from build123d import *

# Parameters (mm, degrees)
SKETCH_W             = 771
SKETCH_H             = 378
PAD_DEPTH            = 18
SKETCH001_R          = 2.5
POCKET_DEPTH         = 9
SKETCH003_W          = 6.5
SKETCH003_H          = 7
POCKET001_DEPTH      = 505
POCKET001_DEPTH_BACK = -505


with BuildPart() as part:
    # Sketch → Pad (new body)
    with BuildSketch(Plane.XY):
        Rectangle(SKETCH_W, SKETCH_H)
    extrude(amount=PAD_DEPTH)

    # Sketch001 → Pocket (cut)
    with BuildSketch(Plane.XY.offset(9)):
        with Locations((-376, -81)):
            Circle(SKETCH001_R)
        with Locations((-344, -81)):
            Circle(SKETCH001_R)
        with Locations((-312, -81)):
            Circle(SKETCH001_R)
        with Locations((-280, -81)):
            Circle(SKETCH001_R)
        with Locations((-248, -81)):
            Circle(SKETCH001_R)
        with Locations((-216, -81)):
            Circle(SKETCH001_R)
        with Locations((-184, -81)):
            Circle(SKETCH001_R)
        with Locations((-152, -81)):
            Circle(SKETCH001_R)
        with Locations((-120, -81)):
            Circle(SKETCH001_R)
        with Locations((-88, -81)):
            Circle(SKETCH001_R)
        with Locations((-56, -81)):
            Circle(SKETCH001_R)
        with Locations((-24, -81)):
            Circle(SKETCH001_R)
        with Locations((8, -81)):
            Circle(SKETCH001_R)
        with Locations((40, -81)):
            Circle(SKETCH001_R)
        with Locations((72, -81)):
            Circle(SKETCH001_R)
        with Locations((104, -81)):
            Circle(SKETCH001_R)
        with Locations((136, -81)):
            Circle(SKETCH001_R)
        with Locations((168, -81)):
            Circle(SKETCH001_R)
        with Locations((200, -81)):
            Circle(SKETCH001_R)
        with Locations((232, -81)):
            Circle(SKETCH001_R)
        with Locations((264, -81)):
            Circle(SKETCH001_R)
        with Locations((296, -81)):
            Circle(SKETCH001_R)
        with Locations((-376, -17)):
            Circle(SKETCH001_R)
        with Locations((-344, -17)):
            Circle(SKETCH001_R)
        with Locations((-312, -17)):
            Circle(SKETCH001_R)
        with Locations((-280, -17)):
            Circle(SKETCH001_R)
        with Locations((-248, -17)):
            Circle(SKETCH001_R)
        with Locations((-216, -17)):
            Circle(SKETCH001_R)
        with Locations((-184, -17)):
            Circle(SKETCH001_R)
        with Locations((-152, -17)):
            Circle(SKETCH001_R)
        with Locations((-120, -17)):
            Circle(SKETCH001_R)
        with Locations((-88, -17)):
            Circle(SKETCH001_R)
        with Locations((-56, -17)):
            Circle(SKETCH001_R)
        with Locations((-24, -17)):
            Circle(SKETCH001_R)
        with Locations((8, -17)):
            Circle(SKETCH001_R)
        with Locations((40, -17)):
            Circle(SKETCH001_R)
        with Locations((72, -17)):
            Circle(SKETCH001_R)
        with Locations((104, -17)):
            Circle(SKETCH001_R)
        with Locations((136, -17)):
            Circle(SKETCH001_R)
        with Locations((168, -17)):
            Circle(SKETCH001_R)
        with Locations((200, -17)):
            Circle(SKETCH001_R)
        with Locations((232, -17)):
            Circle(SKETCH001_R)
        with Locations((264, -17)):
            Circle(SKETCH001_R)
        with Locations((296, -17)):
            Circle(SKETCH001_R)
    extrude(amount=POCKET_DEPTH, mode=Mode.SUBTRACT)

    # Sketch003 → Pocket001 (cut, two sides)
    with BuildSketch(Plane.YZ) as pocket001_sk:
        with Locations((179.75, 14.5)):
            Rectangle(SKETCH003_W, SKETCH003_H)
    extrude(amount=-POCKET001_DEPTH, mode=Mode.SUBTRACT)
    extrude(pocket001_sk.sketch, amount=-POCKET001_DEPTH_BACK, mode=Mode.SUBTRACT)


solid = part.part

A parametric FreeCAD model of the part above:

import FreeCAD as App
import Part
import Sketcher
Q = App.Units.Quantity


def add_polygon(sketch, points):
    """Adds a closed chain of lines whose ends are joined by coincident constraints."""
    first, n = sketch.GeometryCount, len(points)
    for a, b in zip(points, points[1:] + points[:1]):
        sketch.addGeometry(Part.LineSegment(App.Vector(*a, 0), App.Vector(*b, 0)), False)
    for i in range(n):
        sketch.addConstraint(Sketcher.Constraint("Coincident", first + i, 2, first + (i + 1) % n, 1))

doc = App.newDocument("Part")
params = doc.addObject("Spreadsheet::Sheet", "Params")
for row, (alias, value) in enumerate([
    ("sketch1_width", "771 mm"),
    ("sketch1_height", "378 mm"),
    ("pad1_length", "18 mm"),
    ("sketch2_diameter", "5 mm"),
    ("pocket1_length", "9 mm"),
    ("sketch3_height", "7 mm"),
    ("sketch3_width", "6.5 mm"),
], start=1):
    params.set(f"A{row}", alias)
    params.set(f"B{row}", "=" + value)
    params.setAlias(f"B{row}", alias)

body = doc.addObject("PartDesign::Body", "Body")

sketch1 = doc.addObject("Sketcher::SketchObject", "Sketch")
body.addObject(sketch1)
sketch1.AttachmentSupport = (doc.XY_Plane, [""])
sketch1.MapMode = "FlatFace"
add_polygon(sketch1, [(-386, 189), (-386, -189), (386, -189), (386, 189)])
sketch1.addConstraint([
    Sketcher.Constraint("Vertical", 0),
    Sketcher.Constraint("Horizontal", 1),
    Sketcher.Constraint("Vertical", 2),
    Sketcher.Constraint("Horizontal", 3),
    Sketcher.Constraint("Symmetric", 0, 2, 2, 2, -1, 1),
    Sketcher.Constraint("DistanceX", 1, 1, 1, 2, Q("771 mm")),
    Sketcher.Constraint("DistanceY", 0, 2, 0, 1, Q("378 mm")),
])
sketch1.setExpression("Constraints[9]", "Params.sketch1_width")
sketch1.setExpression("Constraints[10]", "Params.sketch1_height")
pad1 = doc.addObject("PartDesign::Pad", "Pad")
body.addObject(pad1)
pad1.Profile = sketch1
pad1.setExpression("Length", "Params.pad1_length")

sketch2 = doc.addObject("Sketcher::SketchObject", "Sketch001")
body.addObject(sketch2)
sketch2.AttachmentSupport = (doc.XY_Plane, [""])
sketch2.MapMode = "FlatFace"
sketch2.AttachmentOffset = App.Placement(App.Vector(0, 0, 9), App.Rotation())
sketch2.addGeometry([
    Part.Circle(App.Vector(-376, -81, 0), App.Vector(0, 0, 1), 2.5),
    Part.Circle(App.Vector(-344, -81, 0), App.Vector(0, 0, 1), 2.5),
    Part.Circle(App.Vector(-312, -81, 0), App.Vector(0, 0, 1), 2.5),
    Part.Circle(App.Vector(-280, -81, 0), App.Vector(0, 0, 1), 2.5),
    Part.Circle(App.Vector(-248, -81, 0), App.Vector(0, 0, 1), 2.5),
    Part.Circle(App.Vector(-216, -81, 0), App.Vector(0, 0, 1), 2.5),
    Part.Circle(App.Vector(-184, -81, 0), App.Vector(0, 0, 1), 2.5),
    Part.Circle(App.Vector(-152, -81, 0), App.Vector(0, 0, 1), 2.5),
    Part.Circle(App.Vector(-120, -81, 0), App.Vector(0, 0, 1), 2.5),
    Part.Circle(App.Vector(-88, -81, 0), App.Vector(0, 0, 1), 2.5),
    Part.Circle(App.Vector(-56, -81, 0), App.Vector(0, 0, 1), 2.5),
    Part.Circle(App.Vector(-24, -81, 0), App.Vector(0, 0, 1), 2.5),
    Part.Circle(App.Vector(8, -81, 0), App.Vector(0, 0, 1), 2.5),
    Part.Circle(App.Vector(40, -81, 0), App.Vector(0, 0, 1), 2.5),
    Part.Circle(App.Vector(72, -81, 0), App.Vector(0, 0, 1), 2.5),
    Part.Circle(App.Vector(104, -81, 0), App.Vector(0, 0, 1), 2.5),
    Part.Circle(App.Vector(136, -81, 0), App.Vector(0, 0, 1), 2.5),
    Part.Circle(App.Vector(168, -81, 0), App.Vector(0, 0, 1), 2.5),
    Part.Circle(App.Vector(200, -81, 0), App.Vector(0, 0, 1), 2.5),
    Part.Circle(App.Vector(232, -81, 0), App.Vector(0, 0, 1), 2.5),
    Part.Circle(App.Vector(264, -81, 0), App.Vector(0, 0, 1), 2.5),
    Part.Circle(App.Vector(296, -81, 0), App.Vector(0, 0, 1), 2.5),
    Part.Circle(App.Vector(-376, -17, 0), App.Vector(0, 0, 1), 2.5),
    Part.Circle(App.Vector(-344, -17, 0), App.Vector(0, 0, 1), 2.5),
    Part.Circle(App.Vector(-312, -17, 0), App.Vector(0, 0, 1), 2.5),
    Part.Circle(App.Vector(-280, -17, 0), App.Vector(0, 0, 1), 2.5),
    Part.Circle(App.Vector(-248, -17, 0), App.Vector(0, 0, 1), 2.5),
    Part.Circle(App.Vector(-216, -17, 0), App.Vector(0, 0, 1), 2.5),
    Part.Circle(App.Vector(-184, -17, 0), App.Vector(0, 0, 1), 2.5),
    Part.Circle(App.Vector(-152, -17, 0), App.Vector(0, 0, 1), 2.5),
    Part.Circle(App.Vector(-120, -17, 0), App.Vector(0, 0, 1), 2.5),
    Part.Circle(App.Vector(-88, -17, 0), App.Vector(0, 0, 1), 2.5),
    Part.Circle(App.Vector(-56, -17, 0), App.Vector(0, 0, 1), 2.5),
    Part.Circle(App.Vector(-24, -17, 0), App.Vector(0, 0, 1), 2.5),
    Part.Circle(App.Vector(8, -17, 0), App.Vector(0, 0, 1), 2.5),
    Part.Circle(App.Vector(40, -17, 0), App.Vector(0, 0, 1), 2.5),
    Part.Circle(App.Vector(72, -17, 0), App.Vector(0, 0, 1), 2.5),
    Part.Circle(App.Vector(104, -17, 0), App.Vector(0, 0, 1), 2.5),
    Part.Circle(App.Vector(136, -17, 0), App.Vector(0, 0, 1), 2.5),
    Part.Circle(App.Vector(168, -17, 0), App.Vector(0, 0, 1), 2.5),
    Part.Circle(App.Vector(200, -17, 0), App.Vector(0, 0, 1), 2.5),
    Part.Circle(App.Vector(232, -17, 0), App.Vector(0, 0, 1), 2.5),
    Part.Circle(App.Vector(264, -17, 0), App.Vector(0, 0, 1), 2.5),
    Part.Circle(App.Vector(296, -17, 0), App.Vector(0, 0, 1), 2.5),
], False)
sketch2.addConstraint([
    Sketcher.Constraint("Equal", 0, 1),
    Sketcher.Constraint("Equal", 1, 2),
    Sketcher.Constraint("Equal", 2, 3),
    Sketcher.Constraint("Equal", 3, 4),
    Sketcher.Constraint("Equal", 4, 5),
    Sketcher.Constraint("Equal", 5, 6),
    Sketcher.Constraint("Equal", 6, 7),
    Sketcher.Constraint("Equal", 7, 8),
    Sketcher.Constraint("Equal", 8, 9),
    Sketcher.Constraint("Equal", 9, 10),
    Sketcher.Constraint("Equal", 10, 11),
    Sketcher.Constraint("Equal", 11, 12),
    Sketcher.Constraint("Equal", 12, 13),
    Sketcher.Constraint("Equal", 13, 14),
    Sketcher.Constraint("Equal", 14, 15),
    Sketcher.Constraint("Equal", 15, 16),
    Sketcher.Constraint("Equal", 16, 17),
    Sketcher.Constraint("Equal", 17, 18),
    Sketcher.Constraint("Equal", 18, 19),
    Sketcher.Constraint("Equal", 19, 20),
    Sketcher.Constraint("Equal", 20, 21),
    Sketcher.Constraint("Equal", 21, 22),
    Sketcher.Constraint("Equal", 22, 23),
    Sketcher.Constraint("Equal", 23, 24),
    Sketcher.Constraint("Equal", 24, 25),
    Sketcher.Constraint("Equal", 25, 26),
    Sketcher.Constraint("Equal", 26, 27),
    Sketcher.Constraint("Equal", 27, 28),
    Sketcher.Constraint("Equal", 28, 29),
    Sketcher.Constraint("Equal", 29, 30),
    Sketcher.Constraint("Equal", 30, 31),
    Sketcher.Constraint("Equal", 31, 32),
    Sketcher.Constraint("Equal", 32, 33),
    Sketcher.Constraint("Equal", 33, 34),
    Sketcher.Constraint("Equal", 34, 35),
    Sketcher.Constraint("Equal", 35, 36),
    Sketcher.Constraint("Equal", 36, 37),
    Sketcher.Constraint("Equal", 37, 38),
    Sketcher.Constraint("Equal", 38, 39),
    Sketcher.Constraint("Equal", 39, 40),
    Sketcher.Constraint("Equal", 40, 41),
    Sketcher.Constraint("Equal", 41, 42),
    Sketcher.Constraint("Equal", 42, 43),
    Sketcher.Constraint("Horizontal", 0, 3, 1, 3),
    Sketcher.Constraint("Horizontal", 1, 3, 2, 3),
    Sketcher.Constraint("Horizontal", 2, 3, 3, 3),
    Sketcher.Constraint("Horizontal", 3, 3, 4, 3),
    Sketcher.Constraint("Horizontal", 4, 3, 5, 3),
    Sketcher.Constraint("Horizontal", 5, 3, 6, 3),
    Sketcher.Constraint("Horizontal", 6, 3, 7, 3),
    Sketcher.Constraint("Horizontal", 7, 3, 8, 3),
    Sketcher.Constraint("Horizontal", 8, 3, 9, 3),
    Sketcher.Constraint("Horizontal", 9, 3, 10, 3),
    Sketcher.Constraint("Horizontal", 10, 3, 11, 3),
    Sketcher.Constraint("Horizontal", 11, 3, 12, 3),
    Sketcher.Constraint("Horizontal", 12, 3, 13, 3),
    Sketcher.Constraint("Horizontal", 13, 3, 14, 3),
    Sketcher.Constraint("Horizontal", 14, 3, 15, 3),
    Sketcher.Constraint("Horizontal", 15, 3, 16, 3),
    Sketcher.Constraint("Horizontal", 16, 3, 17, 3),
    Sketcher.Constraint("Horizontal", 17, 3, 18, 3),
    Sketcher.Constraint("Horizontal", 18, 3, 19, 3),
    Sketcher.Constraint("Horizontal", 19, 3, 20, 3),
    Sketcher.Constraint("Horizontal", 20, 3, 21, 3),
    Sketcher.Constraint("Horizontal", 22, 3, 23, 3),
    Sketcher.Constraint("Horizontal", 23, 3, 24, 3),
    Sketcher.Constraint("Horizontal", 24, 3, 25, 3),
    Sketcher.Constraint("Horizontal", 25, 3, 26, 3),
    Sketcher.Constraint("Horizontal", 26, 3, 27, 3),
    Sketcher.Constraint("Horizontal", 27, 3, 28, 3),
    Sketcher.Constraint("Horizontal", 28, 3, 29, 3),
    Sketcher.Constraint("Horizontal", 29, 3, 30, 3),
    Sketcher.Constraint("Horizontal", 30, 3, 31, 3),
    Sketcher.Constraint("Horizontal", 31, 3, 32, 3),
    Sketcher.Constraint("Horizontal", 32, 3, 33, 3),
    Sketcher.Constraint("Horizontal", 33, 3, 34, 3),
    Sketcher.Constraint("Horizontal", 34, 3, 35, 3),
    Sketcher.Constraint("Horizontal", 35, 3, 36, 3),
    Sketcher.Constraint("Horizontal", 36, 3, 37, 3),
    Sketcher.Constraint("Horizontal", 37, 3, 38, 3),
    Sketcher.Constraint("Horizontal", 38, 3, 39, 3),
    Sketcher.Constraint("Horizontal", 39, 3, 40, 3),
    Sketcher.Constraint("Horizontal", 40, 3, 41, 3),
    Sketcher.Constraint("Horizontal", 41, 3, 42, 3),
    Sketcher.Constraint("Horizontal", 42, 3, 43, 3),
    Sketcher.Constraint("Vertical", 0, 3, 22, 3),
    Sketcher.Constraint("Vertical", 1, 3, 23, 3),
    Sketcher.Constraint("Vertical", 2, 3, 24, 3),
    Sketcher.Constraint("Vertical", 3, 3, 25, 3),
    Sketcher.Constraint("Vertical", 4, 3, 26, 3),
    Sketcher.Constraint("Vertical", 5, 3, 27, 3),
    Sketcher.Constraint("Vertical", 6, 3, 28, 3),
    Sketcher.Constraint("Vertical", 7, 3, 29, 3),
    Sketcher.Constraint("Vertical", 8, 3, 30, 3),
    Sketcher.Constraint("Vertical", 9, 3, 31, 3),
    Sketcher.Constraint("Vertical", 10, 3, 32, 3),
    Sketcher.Constraint("Vertical", 11, 3, 33, 3),
    Sketcher.Constraint("Vertical", 12, 3, 34, 3),
    Sketcher.Constraint("Vertical", 13, 3, 35, 3),
    Sketcher.Constraint("Vertical", 14, 3, 36, 3),
    Sketcher.Constraint("Vertical", 15, 3, 37, 3),
    Sketcher.Constraint("Vertical", 16, 3, 38, 3),
    Sketcher.Constraint("Vertical", 17, 3, 39, 3),
    Sketcher.Constraint("Vertical", 18, 3, 40, 3),
    Sketcher.Constraint("Vertical", 19, 3, 41, 3),
    Sketcher.Constraint("Vertical", 20, 3, 42, 3),
    Sketcher.Constraint("Vertical", 21, 3, 43, 3),
    Sketcher.Constraint("Diameter", 0, Q("5 mm")),
    Sketcher.Constraint("DistanceX", 0, 3, -1, 1, Q("376 mm")),
    Sketcher.Constraint("DistanceY", 0, 3, -1, 1, Q("81 mm")),
    Sketcher.Constraint("DistanceX", 1, 3, -1, 1, Q("344 mm")),
    Sketcher.Constraint("DistanceX", 2, 3, -1, 1, Q("312 mm")),
    Sketcher.Constraint("DistanceX", 3, 3, -1, 1, Q("280 mm")),
    Sketcher.Constraint("DistanceX", 4, 3, -1, 1, Q("248 mm")),
    Sketcher.Constraint("DistanceX", 5, 3, -1, 1, Q("216 mm")),
    Sketcher.Constraint("DistanceX", 6, 3, -1, 1, Q("184 mm")),
    Sketcher.Constraint("DistanceX", 7, 3, -1, 1, Q("152 mm")),
    Sketcher.Constraint("DistanceX", 8, 3, -1, 1, Q("120 mm")),
    Sketcher.Constraint("DistanceX", 9, 3, -1, 1, Q("88 mm")),
    Sketcher.Constraint("DistanceX", 10, 3, -1, 1, Q("56 mm")),
    Sketcher.Constraint("DistanceX", 11, 3, -1, 1, Q("24 mm")),
    Sketcher.Constraint("DistanceX", -1, 1, 12, 3, Q("8 mm")),
    Sketcher.Constraint("DistanceX", -1, 1, 13, 3, Q("40 mm")),
    Sketcher.Constraint("DistanceX", -1, 1, 14, 3, Q("72 mm")),
    Sketcher.Constraint("DistanceX", -1, 1, 15, 3, Q("104 mm")),
    Sketcher.Constraint("DistanceX", -1, 1, 16, 3, Q("136 mm")),
    Sketcher.Constraint("DistanceX", -1, 1, 17, 3, Q("168 mm")),
    Sketcher.Constraint("DistanceX", -1, 1, 18, 3, Q("200 mm")),
    Sketcher.Constraint("DistanceX", -1, 1, 19, 3, Q("232 mm")),
    Sketcher.Constraint("DistanceX", -1, 1, 20, 3, Q("264 mm")),
    Sketcher.Constraint("DistanceX", -1, 1, 21, 3, Q("296 mm")),
    Sketcher.Constraint("DistanceY", 22, 3, -1, 1, Q("17 mm")),
])
sketch2.setExpression("Constraints[107]", "Params.sketch2_diameter")
pocket1 = doc.addObject("PartDesign::Pocket", "Pocket")
body.addObject(pocket1)
pocket1.Profile = sketch2
pocket1.setExpression("Length", "Params.pocket1_length")
pocket1.Reversed = True

sketch3 = doc.addObject("Sketcher::SketchObject", "Sketch002")
body.addObject(sketch3)
sketch3.AttachmentSupport = (doc.YZ_Plane, [""])
sketch3.MapMode = "FlatFace"
add_polygon(sketch3, [(176, 18), (176, 11), (183, 11), (183, 18)])
sketch3.addConstraint([
    Sketcher.Constraint("Vertical", 0),
    Sketcher.Constraint("Horizontal", 1),
    Sketcher.Constraint("Vertical", 2),
    Sketcher.Constraint("Horizontal", 3),
    Sketcher.Constraint("DistanceY", 0, 2, 0, 1, Q("7 mm")),
    Sketcher.Constraint("DistanceX", 1, 1, 1, 2, Q("6.5 mm")),
    Sketcher.Constraint("DistanceY", -1, 1, 0, 2, Q("11 mm")),
    Sketcher.Constraint("DistanceX", -1, 1, 1, 2, Q("183 mm")),
])
sketch3.setExpression("Constraints[8]", "Params.sketch3_height")
sketch3.setExpression("Constraints[9]", "Params.sketch3_width")
pocket2 = doc.addObject("PartDesign::Pocket", "Pocket001")
body.addObject(pocket2)
pocket2.Profile = sketch3
pocket2.Type = "ThroughAll"
pocket2.Midplane = True

doc.recompute()
